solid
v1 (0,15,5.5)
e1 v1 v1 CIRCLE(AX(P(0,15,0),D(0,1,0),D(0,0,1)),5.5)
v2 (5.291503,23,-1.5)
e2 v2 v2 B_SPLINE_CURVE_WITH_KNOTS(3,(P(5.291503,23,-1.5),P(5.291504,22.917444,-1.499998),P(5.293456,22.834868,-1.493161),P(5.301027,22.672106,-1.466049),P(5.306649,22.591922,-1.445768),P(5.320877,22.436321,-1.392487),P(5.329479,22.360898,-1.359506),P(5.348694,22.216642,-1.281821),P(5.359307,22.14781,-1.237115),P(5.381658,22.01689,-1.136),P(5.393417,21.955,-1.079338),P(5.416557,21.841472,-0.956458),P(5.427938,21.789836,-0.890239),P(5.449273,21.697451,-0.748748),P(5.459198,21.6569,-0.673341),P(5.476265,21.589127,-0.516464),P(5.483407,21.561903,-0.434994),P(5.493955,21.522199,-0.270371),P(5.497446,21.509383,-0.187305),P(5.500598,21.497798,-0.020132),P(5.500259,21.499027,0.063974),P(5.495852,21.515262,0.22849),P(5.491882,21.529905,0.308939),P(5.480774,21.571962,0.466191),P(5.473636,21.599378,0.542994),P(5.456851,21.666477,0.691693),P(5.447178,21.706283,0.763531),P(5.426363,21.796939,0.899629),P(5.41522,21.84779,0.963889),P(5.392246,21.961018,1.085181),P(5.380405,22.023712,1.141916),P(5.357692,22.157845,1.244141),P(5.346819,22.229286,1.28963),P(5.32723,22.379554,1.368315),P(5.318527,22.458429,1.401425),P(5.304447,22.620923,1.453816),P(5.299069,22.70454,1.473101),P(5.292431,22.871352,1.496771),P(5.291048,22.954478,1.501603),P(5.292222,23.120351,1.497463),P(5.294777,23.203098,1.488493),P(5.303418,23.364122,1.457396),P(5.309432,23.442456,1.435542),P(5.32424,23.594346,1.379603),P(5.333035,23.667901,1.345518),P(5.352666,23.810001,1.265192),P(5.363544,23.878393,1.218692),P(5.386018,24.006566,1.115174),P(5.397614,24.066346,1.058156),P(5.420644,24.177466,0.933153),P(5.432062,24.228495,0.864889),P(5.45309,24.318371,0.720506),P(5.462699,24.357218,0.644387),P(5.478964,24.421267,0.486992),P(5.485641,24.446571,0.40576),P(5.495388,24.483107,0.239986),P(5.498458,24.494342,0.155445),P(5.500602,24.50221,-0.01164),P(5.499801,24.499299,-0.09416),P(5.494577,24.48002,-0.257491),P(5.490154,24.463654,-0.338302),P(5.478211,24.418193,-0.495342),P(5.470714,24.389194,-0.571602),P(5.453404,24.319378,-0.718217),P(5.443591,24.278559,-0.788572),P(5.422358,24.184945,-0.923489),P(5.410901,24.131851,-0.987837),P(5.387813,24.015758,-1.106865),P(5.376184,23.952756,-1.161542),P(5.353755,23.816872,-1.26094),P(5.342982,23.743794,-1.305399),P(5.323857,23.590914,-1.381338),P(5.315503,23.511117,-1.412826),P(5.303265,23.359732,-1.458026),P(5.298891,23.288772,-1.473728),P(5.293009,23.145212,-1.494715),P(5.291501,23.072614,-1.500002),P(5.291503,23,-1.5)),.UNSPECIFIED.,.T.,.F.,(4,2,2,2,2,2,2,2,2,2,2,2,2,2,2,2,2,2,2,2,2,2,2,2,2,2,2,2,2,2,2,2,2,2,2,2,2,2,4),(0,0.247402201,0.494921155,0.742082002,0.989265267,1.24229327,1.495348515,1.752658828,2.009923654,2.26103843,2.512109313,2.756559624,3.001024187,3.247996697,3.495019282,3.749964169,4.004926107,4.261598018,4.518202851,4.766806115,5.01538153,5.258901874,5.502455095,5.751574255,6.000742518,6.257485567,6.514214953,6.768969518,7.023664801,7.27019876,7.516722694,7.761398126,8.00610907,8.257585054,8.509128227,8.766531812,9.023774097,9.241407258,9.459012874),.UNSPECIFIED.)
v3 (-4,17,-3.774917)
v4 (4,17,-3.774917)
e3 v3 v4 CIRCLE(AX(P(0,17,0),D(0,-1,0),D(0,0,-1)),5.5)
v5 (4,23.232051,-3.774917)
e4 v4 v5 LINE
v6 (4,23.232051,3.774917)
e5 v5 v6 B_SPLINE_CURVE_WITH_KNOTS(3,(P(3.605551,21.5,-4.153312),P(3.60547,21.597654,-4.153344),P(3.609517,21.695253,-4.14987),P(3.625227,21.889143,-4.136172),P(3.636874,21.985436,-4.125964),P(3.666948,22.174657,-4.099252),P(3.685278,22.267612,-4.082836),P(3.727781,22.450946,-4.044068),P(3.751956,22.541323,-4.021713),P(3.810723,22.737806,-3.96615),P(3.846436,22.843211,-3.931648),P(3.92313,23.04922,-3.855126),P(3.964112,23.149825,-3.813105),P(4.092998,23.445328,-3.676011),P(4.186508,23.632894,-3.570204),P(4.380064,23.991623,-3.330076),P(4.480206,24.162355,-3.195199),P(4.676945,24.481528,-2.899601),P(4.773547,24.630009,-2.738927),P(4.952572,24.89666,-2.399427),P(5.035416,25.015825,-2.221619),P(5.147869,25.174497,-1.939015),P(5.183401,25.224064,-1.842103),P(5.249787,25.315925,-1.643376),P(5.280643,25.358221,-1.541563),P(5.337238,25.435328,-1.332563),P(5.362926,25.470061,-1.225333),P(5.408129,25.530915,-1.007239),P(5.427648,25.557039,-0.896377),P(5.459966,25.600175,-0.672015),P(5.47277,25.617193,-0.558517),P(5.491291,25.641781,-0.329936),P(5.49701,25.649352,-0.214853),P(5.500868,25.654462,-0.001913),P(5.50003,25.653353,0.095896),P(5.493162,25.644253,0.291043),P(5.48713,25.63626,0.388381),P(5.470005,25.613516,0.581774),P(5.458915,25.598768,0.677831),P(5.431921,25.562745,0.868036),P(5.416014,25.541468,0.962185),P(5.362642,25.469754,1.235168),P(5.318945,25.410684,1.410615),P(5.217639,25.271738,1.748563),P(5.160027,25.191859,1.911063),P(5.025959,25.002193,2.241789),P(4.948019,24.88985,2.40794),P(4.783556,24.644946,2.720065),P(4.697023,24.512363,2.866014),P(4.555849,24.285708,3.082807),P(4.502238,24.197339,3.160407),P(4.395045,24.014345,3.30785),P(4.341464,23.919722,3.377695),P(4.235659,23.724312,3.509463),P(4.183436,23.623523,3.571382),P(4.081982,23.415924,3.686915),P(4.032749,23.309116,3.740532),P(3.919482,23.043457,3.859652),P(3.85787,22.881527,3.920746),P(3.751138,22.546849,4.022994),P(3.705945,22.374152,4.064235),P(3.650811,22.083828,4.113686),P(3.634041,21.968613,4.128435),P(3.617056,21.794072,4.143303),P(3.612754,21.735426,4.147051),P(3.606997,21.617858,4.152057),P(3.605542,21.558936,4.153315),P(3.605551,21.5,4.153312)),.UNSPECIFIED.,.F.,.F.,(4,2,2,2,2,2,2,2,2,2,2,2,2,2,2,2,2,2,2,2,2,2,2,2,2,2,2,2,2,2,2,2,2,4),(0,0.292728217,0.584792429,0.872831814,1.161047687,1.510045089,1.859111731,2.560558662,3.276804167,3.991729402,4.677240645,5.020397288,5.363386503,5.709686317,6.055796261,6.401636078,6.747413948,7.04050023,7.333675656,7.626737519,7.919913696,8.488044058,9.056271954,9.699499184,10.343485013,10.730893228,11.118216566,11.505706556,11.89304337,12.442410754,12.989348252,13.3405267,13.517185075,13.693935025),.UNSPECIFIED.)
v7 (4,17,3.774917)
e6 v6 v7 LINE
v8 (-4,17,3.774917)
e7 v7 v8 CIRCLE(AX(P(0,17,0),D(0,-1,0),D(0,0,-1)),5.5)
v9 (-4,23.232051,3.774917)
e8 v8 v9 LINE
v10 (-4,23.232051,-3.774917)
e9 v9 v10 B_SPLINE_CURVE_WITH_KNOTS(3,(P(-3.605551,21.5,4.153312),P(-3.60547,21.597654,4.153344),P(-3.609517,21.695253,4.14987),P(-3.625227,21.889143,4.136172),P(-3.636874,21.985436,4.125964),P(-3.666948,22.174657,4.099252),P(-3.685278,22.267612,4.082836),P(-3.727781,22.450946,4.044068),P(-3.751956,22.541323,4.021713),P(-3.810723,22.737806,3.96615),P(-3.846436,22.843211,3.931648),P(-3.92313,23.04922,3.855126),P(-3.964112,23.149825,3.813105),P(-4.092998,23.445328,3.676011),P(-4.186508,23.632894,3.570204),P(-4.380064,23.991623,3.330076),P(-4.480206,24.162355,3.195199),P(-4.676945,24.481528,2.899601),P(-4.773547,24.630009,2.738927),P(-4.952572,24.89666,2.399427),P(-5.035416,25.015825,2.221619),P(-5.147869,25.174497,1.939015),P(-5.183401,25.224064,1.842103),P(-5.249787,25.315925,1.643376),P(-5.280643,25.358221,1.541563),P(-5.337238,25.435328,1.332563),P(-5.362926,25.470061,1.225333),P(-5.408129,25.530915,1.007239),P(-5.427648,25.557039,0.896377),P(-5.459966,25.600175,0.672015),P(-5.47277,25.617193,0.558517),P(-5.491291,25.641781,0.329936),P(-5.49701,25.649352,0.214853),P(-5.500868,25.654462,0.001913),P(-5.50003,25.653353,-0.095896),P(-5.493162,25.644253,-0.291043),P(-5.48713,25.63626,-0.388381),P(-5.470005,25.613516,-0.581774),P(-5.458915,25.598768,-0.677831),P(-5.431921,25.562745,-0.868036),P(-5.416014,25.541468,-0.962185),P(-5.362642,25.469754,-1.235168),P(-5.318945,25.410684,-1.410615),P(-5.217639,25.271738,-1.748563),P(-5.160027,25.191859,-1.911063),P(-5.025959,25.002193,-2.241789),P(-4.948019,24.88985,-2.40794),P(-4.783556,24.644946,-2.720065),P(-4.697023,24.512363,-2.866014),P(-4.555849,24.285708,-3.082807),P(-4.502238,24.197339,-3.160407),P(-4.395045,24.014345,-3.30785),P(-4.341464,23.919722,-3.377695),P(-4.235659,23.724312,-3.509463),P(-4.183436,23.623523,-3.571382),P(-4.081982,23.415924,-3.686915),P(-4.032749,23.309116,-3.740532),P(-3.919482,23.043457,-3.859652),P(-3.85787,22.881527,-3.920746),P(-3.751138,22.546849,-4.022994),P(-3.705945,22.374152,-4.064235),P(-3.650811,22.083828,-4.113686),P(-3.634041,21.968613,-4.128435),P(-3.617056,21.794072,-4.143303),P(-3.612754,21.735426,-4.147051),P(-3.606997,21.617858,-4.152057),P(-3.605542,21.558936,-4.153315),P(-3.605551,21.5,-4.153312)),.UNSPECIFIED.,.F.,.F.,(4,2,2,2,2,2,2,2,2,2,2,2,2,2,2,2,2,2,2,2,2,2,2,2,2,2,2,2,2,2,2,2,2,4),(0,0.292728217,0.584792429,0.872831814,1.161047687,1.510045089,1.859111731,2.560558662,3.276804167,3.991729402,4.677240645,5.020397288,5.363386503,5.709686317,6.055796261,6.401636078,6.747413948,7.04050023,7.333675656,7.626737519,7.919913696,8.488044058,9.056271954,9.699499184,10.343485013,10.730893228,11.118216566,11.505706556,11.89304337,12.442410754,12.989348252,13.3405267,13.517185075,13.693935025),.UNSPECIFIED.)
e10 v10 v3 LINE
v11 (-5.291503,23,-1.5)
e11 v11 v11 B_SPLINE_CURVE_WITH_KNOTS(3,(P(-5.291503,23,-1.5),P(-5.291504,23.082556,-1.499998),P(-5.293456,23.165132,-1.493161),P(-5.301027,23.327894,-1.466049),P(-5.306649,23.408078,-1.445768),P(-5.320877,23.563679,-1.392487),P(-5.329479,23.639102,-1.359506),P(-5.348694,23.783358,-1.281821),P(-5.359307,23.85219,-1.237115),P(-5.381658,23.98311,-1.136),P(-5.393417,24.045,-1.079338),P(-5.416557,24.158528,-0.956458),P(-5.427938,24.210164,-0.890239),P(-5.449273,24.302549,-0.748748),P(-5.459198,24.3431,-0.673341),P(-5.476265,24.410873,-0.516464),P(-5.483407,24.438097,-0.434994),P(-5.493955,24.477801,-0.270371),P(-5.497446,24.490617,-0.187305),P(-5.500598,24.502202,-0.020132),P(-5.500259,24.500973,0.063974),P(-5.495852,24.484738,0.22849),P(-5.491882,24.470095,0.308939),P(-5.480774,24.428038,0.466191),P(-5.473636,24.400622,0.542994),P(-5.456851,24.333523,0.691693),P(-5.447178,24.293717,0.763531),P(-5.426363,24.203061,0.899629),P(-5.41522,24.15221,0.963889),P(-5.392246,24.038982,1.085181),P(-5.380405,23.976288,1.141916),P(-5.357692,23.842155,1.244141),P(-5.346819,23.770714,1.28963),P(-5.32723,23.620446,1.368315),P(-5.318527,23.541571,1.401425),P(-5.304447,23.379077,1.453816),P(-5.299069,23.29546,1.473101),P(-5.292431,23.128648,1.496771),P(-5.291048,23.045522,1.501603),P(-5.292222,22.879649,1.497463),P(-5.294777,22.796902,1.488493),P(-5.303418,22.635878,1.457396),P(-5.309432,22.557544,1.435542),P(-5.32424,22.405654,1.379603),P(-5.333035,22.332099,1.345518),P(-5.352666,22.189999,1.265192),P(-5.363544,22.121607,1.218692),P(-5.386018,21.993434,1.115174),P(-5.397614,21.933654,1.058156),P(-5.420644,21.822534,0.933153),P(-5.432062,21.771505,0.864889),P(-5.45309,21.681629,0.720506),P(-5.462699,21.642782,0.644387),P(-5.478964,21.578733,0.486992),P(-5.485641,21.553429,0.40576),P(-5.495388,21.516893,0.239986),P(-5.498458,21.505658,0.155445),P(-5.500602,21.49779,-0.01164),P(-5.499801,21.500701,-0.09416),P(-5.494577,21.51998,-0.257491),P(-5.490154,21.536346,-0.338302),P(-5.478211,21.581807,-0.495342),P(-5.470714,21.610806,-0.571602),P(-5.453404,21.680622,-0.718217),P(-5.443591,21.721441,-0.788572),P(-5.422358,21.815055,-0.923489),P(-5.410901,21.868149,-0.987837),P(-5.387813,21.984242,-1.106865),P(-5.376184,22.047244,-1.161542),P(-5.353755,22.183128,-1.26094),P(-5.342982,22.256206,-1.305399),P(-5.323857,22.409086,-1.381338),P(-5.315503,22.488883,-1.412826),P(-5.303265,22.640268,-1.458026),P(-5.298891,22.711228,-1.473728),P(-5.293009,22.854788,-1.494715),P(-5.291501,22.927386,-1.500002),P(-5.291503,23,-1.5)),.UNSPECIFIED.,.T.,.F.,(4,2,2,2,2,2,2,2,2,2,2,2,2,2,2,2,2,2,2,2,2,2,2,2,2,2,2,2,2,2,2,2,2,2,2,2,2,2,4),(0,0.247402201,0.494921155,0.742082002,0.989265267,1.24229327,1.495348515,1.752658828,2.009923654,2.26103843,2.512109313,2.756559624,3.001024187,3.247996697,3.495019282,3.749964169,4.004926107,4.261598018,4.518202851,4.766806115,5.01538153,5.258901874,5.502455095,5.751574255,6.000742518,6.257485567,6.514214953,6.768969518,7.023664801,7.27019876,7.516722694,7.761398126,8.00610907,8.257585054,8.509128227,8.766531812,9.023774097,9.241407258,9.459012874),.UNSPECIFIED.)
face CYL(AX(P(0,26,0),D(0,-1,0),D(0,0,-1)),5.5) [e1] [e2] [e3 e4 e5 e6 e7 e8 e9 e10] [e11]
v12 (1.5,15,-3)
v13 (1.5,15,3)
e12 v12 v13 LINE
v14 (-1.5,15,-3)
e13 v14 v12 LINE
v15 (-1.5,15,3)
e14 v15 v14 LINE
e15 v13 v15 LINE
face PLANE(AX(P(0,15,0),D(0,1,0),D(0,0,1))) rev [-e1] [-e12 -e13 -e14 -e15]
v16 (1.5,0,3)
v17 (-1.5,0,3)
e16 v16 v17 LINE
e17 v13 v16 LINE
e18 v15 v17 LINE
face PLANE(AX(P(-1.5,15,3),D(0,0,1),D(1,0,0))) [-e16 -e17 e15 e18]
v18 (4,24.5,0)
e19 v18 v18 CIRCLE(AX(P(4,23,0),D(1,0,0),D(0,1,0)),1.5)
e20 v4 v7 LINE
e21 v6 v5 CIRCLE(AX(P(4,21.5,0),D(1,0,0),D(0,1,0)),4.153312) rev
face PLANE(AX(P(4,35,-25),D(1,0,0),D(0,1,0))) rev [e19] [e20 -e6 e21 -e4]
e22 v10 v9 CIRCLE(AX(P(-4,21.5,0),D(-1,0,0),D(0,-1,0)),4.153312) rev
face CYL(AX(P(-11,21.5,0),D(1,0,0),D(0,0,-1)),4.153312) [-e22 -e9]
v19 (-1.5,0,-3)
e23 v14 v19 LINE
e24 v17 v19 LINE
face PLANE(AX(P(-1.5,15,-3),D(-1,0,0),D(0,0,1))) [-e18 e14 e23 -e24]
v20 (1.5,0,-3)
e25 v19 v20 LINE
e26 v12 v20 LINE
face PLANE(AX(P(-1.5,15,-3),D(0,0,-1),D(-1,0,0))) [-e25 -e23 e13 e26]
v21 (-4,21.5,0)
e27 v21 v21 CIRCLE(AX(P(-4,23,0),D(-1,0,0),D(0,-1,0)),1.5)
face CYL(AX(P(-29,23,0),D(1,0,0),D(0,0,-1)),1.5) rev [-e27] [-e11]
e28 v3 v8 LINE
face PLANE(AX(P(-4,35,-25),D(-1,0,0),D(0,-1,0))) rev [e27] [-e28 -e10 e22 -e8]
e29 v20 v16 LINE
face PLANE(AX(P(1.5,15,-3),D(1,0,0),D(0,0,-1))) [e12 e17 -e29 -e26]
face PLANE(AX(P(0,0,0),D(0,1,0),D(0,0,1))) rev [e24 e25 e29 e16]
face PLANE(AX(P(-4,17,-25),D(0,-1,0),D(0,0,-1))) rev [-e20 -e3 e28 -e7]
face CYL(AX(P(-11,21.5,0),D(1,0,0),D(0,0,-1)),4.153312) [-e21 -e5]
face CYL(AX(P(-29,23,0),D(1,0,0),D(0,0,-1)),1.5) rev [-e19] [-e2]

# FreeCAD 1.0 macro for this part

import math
import FreeCAD as App
import Part
import Sketcher
Q = App.Units.Quantity

doc = App.newDocument("Part")
body = doc.addObject("PartDesign::Body", "Body")

# Sketch on XZ plane
sketch1 = doc.addObject("Sketcher::SketchObject", "Sketch")
body.addObject(sketch1)
sketch1.AttachmentSupport = (doc.XZ_Plane, [""])
sketch1.MapMode = "FlatFace"
sketch1.addGeometry(Part.Circle(App.Vector(0, 0, 0), App.Vector(0, 0, 1), 6), False)
sketch1.addConstraint([
    Sketcher.Constraint("Coincident", 0, 3, -1, 1),
    Sketcher.Constraint("Diameter", 0, Q("11 mm")),
])
pad1 = doc.addObject("PartDesign::Pad", "Pad")
body.addObject(pad1)
pad1.Profile = sketch1
pad1.Length = 26
pad1.Reversed = True

# Sketch on XY plane
sketch2 = doc.addObject("Sketcher::SketchObject", "Sketch001")
body.addObject(sketch2)
sketch2.AttachmentSupport = (doc.XY_Plane, [""])
sketch2.MapMode = "FlatFace"
sketch2.addGeometry([
    Part.LineSegment(App.Vector(-4, 35, 0), App.Vector(-4, 17, 0)),
    Part.LineSegment(App.Vector(-4, 17, 0), App.Vector(4, 17, 0)),
    Part.LineSegment(App.Vector(4, 17, 0), App.Vector(4, 35, 0)),
    Part.LineSegment(App.Vector(4, 35, 0), App.Vector(-4, 35, 0)),
], False)
sketch2.addConstraint([
    Sketcher.Constraint("Coincident", 0, 2, 1, 1),
    Sketcher.Constraint("Coincident", 1, 2, 2, 1),
    Sketcher.Constraint("Coincident", 2, 2, 3, 1),
    Sketcher.Constraint("Coincident", 3, 2, 0, 1),
    Sketcher.Constraint("Vertical", 0),
    Sketcher.Constraint("Horizontal", 1),
    Sketcher.Constraint("Vertical", 2),
    Sketcher.Constraint("Horizontal", 3),
    Sketcher.Constraint("DistanceX", 1, 1, 1, 2, Q("8 mm")),
    Sketcher.Constraint("DistanceY", 0, 2, 0, 1, Q("18 mm")),
    Sketcher.Constraint("DistanceX", 0, 2, -1, 1, Q("4 mm")),
    Sketcher.Constraint("DistanceY", -1, 1, 0, 2, Q("17 mm")),
])
pocket1 = doc.addObject("PartDesign::Pocket", "Pocket")
body.addObject(pocket1)
pocket1.Profile = sketch2
pocket1.Length = 50
pocket1.Midplane = True

# Sketch on YZ plane
sketch3 = doc.addObject("Sketcher::SketchObject", "Sketch002")
body.addObject(sketch3)
sketch3.AttachmentSupport = (doc.YZ_Plane, [""])
sketch3.MapMode = "FlatFace"
sketch3.AttachmentOffset = App.Placement(App.Vector(0, 0, -4), App.Rotation())
sketch3.addGeometry(Part.Circle(App.Vector(23, 0, 0), App.Vector(0, 0, 1), 1.5), False)
sketch3.addConstraint([
    Sketcher.Constraint("PointOnObject", 0, 3, -1),
    Sketcher.Constraint("Diameter", 0, Q("3 mm")),
    Sketcher.Constraint("DistanceX", -1, 1, 0, 3, Q("23 mm")),
])
pocket2 = doc.addObject("PartDesign::Pocket", "Pocket001")
body.addObject(pocket2)
pocket2.Profile = sketch3
pocket2.Length = 50
pocket2.Midplane = True

# Sketch on YZ plane
sketch4 = doc.addObject("Sketcher::SketchObject", "Sketch003")
body.addObject(sketch4)
sketch4.AttachmentSupport = (doc.YZ_Plane, [""])
sketch4.MapMode = "FlatFace"
sketch4.addGeometry([
    Part.LineSegment(App.Vector(24.9, 12.2, 0), App.Vector(21.5, 4.2, 0)),  # 0
    Part.ArcOfCircle(Part.Circle(App.Vector(21.5, 0, 0), App.Vector(0, 0, 1), 4.2), math.radians(-90), math.radians(90)),  # 1
    Part.LineSegment(App.Vector(21.5, -4.2, 0), App.Vector(24.6, -13, 0)),  # 2
    Part.LineSegment(App.Vector(24.6, -13, 0), App.Vector(32.8, -0.6, 0)),  # 3
    Part.LineSegment(App.Vector(32.8, -0.6, 0), App.Vector(24.9, 12.2, 0)),  # 4
], False)
sketch4.addConstraint([
    Sketcher.Constraint("Coincident", 0, 2, 1, 2),
    Sketcher.Constraint("Coincident", 1, 1, 2, 1),
    Sketcher.Constraint("Coincident", 2, 2, 3, 1),
    Sketcher.Constraint("Coincident", 3, 2, 4, 1),
    Sketcher.Constraint("Coincident", 4, 2, 0, 1),
    Sketcher.Constraint("Symmetric", 0, 2, 1, 1, -1),
    Sketcher.Constraint("Vertical", 1, 3, 0, 2),
    Sketcher.Constraint("DistanceX", -1, 1, 1, 3, Q("21.5 mm")),
    Sketcher.Constraint("Radius", 1, Q("4.153312 mm")),
    Sketcher.Constraint("DistanceY", 2, 2, 1, 1, Q("8.838098 mm")),
    Sketcher.Constraint("Distance", 3, Q("14.824111 mm")),
    Sketcher.Constraint("Distance", 4, Q("15.060241 mm")),
    Sketcher.Constraint("DistanceX", -1, 1, 3, 2, Q("32.780719 mm")),
    Sketcher.Constraint("DistanceY", 3, 2, -1, 1, Q("0.629851 mm")),
    Sketcher.Constraint("DistanceY", -1, 1, 4, 2, Q("12.215122 mm")),
])
pocket3 = doc.addObject("PartDesign::Pocket", "Pocket002")
body.addObject(pocket3)
pocket3.Profile = sketch4
pocket3.Length = 22
pocket3.Midplane = True

# Sketch on XZ plane
sketch5 = doc.addObject("Sketcher::SketchObject", "Sketch004")
body.addObject(sketch5)
sketch5.AttachmentSupport = (doc.XZ_Plane, [""])
sketch5.MapMode = "FlatFace"
sketch5.addGeometry([
    Part.LineSegment(App.Vector(12.9, -13, 0), App.Vector(12.9, 13, 0)),  # 0
    Part.LineSegment(App.Vector(12.9, 13, 0), App.Vector(-12.9, 13, 0)),  # 1
    Part.LineSegment(App.Vector(-12.9, 13, 0), App.Vector(-12.9, -13, 0)),  # 2
    Part.LineSegment(App.Vector(-12.9, -13, 0), App.Vector(12.9, -13, 0)),  # 3
    Part.LineSegment(App.Vector(-1.5, 3, 0), App.Vector(1.5, 3, 0)),  # 4
    Part.LineSegment(App.Vector(1.5, 3, 0), App.Vector(1.5, -3, 0)),  # 5
    Part.LineSegment(App.Vector(1.5, -3, 0), App.Vector(-1.5, -3, 0)),  # 6
    Part.LineSegment(App.Vector(-1.5, -3, 0), App.Vector(-1.5, 3, 0)),  # 7
], False)
sketch5.addConstraint([
    Sketcher.Constraint("Coincident", 0, 2, 1, 1),
    Sketcher.Constraint("Coincident", 1, 2, 2, 1),
    Sketcher.Constraint("Coincident", 2, 2, 3, 1),
    Sketcher.Constraint("Coincident", 3, 2, 0, 1),
    Sketcher.Constraint("Coincident", 4, 2, 5, 1),
    Sketcher.Constraint("Coincident", 5, 2, 6, 1),
    Sketcher.Constraint("Coincident", 6, 2, 7, 1),
    Sketcher.Constraint("Coincident", 7, 2, 4, 1),
    Sketcher.Constraint("Vertical", 0),
    Sketcher.Constraint("Horizontal", 1),
    Sketcher.Constraint("Vertical", 2),
    Sketcher.Constraint("Horizontal", 3),
    Sketcher.Constraint("Horizontal", 4),
    Sketcher.Constraint("Vertical", 5),
    Sketcher.Constraint("Horizontal", 6),
    Sketcher.Constraint("Vertical", 7),
    Sketcher.Constraint("Symmetric", 0, 2, 2, 2, -1, 1),
    Sketcher.Constraint("Symmetric", 4, 2, 6, 2, -1, 1),
    Sketcher.Constraint("DistanceX", 4, 1, 4, 2, Q("3 mm")),
    Sketcher.Constraint("DistanceY", 5, 2, 5, 1, Q("6 mm")),
    Sketcher.Constraint("DistanceX", 1, 2, 1, 1, Q("25.849712 mm")),
    Sketcher.Constraint("DistanceY", 0, 1, 0, 2, Q("26.022963 mm")),
])
pocket4 = doc.addObject("PartDesign::Pocket", "Pocket003")
body.addObject(pocket4)
pocket4.Profile = sketch5
pocket4.Length = 15

doc.recompute()
